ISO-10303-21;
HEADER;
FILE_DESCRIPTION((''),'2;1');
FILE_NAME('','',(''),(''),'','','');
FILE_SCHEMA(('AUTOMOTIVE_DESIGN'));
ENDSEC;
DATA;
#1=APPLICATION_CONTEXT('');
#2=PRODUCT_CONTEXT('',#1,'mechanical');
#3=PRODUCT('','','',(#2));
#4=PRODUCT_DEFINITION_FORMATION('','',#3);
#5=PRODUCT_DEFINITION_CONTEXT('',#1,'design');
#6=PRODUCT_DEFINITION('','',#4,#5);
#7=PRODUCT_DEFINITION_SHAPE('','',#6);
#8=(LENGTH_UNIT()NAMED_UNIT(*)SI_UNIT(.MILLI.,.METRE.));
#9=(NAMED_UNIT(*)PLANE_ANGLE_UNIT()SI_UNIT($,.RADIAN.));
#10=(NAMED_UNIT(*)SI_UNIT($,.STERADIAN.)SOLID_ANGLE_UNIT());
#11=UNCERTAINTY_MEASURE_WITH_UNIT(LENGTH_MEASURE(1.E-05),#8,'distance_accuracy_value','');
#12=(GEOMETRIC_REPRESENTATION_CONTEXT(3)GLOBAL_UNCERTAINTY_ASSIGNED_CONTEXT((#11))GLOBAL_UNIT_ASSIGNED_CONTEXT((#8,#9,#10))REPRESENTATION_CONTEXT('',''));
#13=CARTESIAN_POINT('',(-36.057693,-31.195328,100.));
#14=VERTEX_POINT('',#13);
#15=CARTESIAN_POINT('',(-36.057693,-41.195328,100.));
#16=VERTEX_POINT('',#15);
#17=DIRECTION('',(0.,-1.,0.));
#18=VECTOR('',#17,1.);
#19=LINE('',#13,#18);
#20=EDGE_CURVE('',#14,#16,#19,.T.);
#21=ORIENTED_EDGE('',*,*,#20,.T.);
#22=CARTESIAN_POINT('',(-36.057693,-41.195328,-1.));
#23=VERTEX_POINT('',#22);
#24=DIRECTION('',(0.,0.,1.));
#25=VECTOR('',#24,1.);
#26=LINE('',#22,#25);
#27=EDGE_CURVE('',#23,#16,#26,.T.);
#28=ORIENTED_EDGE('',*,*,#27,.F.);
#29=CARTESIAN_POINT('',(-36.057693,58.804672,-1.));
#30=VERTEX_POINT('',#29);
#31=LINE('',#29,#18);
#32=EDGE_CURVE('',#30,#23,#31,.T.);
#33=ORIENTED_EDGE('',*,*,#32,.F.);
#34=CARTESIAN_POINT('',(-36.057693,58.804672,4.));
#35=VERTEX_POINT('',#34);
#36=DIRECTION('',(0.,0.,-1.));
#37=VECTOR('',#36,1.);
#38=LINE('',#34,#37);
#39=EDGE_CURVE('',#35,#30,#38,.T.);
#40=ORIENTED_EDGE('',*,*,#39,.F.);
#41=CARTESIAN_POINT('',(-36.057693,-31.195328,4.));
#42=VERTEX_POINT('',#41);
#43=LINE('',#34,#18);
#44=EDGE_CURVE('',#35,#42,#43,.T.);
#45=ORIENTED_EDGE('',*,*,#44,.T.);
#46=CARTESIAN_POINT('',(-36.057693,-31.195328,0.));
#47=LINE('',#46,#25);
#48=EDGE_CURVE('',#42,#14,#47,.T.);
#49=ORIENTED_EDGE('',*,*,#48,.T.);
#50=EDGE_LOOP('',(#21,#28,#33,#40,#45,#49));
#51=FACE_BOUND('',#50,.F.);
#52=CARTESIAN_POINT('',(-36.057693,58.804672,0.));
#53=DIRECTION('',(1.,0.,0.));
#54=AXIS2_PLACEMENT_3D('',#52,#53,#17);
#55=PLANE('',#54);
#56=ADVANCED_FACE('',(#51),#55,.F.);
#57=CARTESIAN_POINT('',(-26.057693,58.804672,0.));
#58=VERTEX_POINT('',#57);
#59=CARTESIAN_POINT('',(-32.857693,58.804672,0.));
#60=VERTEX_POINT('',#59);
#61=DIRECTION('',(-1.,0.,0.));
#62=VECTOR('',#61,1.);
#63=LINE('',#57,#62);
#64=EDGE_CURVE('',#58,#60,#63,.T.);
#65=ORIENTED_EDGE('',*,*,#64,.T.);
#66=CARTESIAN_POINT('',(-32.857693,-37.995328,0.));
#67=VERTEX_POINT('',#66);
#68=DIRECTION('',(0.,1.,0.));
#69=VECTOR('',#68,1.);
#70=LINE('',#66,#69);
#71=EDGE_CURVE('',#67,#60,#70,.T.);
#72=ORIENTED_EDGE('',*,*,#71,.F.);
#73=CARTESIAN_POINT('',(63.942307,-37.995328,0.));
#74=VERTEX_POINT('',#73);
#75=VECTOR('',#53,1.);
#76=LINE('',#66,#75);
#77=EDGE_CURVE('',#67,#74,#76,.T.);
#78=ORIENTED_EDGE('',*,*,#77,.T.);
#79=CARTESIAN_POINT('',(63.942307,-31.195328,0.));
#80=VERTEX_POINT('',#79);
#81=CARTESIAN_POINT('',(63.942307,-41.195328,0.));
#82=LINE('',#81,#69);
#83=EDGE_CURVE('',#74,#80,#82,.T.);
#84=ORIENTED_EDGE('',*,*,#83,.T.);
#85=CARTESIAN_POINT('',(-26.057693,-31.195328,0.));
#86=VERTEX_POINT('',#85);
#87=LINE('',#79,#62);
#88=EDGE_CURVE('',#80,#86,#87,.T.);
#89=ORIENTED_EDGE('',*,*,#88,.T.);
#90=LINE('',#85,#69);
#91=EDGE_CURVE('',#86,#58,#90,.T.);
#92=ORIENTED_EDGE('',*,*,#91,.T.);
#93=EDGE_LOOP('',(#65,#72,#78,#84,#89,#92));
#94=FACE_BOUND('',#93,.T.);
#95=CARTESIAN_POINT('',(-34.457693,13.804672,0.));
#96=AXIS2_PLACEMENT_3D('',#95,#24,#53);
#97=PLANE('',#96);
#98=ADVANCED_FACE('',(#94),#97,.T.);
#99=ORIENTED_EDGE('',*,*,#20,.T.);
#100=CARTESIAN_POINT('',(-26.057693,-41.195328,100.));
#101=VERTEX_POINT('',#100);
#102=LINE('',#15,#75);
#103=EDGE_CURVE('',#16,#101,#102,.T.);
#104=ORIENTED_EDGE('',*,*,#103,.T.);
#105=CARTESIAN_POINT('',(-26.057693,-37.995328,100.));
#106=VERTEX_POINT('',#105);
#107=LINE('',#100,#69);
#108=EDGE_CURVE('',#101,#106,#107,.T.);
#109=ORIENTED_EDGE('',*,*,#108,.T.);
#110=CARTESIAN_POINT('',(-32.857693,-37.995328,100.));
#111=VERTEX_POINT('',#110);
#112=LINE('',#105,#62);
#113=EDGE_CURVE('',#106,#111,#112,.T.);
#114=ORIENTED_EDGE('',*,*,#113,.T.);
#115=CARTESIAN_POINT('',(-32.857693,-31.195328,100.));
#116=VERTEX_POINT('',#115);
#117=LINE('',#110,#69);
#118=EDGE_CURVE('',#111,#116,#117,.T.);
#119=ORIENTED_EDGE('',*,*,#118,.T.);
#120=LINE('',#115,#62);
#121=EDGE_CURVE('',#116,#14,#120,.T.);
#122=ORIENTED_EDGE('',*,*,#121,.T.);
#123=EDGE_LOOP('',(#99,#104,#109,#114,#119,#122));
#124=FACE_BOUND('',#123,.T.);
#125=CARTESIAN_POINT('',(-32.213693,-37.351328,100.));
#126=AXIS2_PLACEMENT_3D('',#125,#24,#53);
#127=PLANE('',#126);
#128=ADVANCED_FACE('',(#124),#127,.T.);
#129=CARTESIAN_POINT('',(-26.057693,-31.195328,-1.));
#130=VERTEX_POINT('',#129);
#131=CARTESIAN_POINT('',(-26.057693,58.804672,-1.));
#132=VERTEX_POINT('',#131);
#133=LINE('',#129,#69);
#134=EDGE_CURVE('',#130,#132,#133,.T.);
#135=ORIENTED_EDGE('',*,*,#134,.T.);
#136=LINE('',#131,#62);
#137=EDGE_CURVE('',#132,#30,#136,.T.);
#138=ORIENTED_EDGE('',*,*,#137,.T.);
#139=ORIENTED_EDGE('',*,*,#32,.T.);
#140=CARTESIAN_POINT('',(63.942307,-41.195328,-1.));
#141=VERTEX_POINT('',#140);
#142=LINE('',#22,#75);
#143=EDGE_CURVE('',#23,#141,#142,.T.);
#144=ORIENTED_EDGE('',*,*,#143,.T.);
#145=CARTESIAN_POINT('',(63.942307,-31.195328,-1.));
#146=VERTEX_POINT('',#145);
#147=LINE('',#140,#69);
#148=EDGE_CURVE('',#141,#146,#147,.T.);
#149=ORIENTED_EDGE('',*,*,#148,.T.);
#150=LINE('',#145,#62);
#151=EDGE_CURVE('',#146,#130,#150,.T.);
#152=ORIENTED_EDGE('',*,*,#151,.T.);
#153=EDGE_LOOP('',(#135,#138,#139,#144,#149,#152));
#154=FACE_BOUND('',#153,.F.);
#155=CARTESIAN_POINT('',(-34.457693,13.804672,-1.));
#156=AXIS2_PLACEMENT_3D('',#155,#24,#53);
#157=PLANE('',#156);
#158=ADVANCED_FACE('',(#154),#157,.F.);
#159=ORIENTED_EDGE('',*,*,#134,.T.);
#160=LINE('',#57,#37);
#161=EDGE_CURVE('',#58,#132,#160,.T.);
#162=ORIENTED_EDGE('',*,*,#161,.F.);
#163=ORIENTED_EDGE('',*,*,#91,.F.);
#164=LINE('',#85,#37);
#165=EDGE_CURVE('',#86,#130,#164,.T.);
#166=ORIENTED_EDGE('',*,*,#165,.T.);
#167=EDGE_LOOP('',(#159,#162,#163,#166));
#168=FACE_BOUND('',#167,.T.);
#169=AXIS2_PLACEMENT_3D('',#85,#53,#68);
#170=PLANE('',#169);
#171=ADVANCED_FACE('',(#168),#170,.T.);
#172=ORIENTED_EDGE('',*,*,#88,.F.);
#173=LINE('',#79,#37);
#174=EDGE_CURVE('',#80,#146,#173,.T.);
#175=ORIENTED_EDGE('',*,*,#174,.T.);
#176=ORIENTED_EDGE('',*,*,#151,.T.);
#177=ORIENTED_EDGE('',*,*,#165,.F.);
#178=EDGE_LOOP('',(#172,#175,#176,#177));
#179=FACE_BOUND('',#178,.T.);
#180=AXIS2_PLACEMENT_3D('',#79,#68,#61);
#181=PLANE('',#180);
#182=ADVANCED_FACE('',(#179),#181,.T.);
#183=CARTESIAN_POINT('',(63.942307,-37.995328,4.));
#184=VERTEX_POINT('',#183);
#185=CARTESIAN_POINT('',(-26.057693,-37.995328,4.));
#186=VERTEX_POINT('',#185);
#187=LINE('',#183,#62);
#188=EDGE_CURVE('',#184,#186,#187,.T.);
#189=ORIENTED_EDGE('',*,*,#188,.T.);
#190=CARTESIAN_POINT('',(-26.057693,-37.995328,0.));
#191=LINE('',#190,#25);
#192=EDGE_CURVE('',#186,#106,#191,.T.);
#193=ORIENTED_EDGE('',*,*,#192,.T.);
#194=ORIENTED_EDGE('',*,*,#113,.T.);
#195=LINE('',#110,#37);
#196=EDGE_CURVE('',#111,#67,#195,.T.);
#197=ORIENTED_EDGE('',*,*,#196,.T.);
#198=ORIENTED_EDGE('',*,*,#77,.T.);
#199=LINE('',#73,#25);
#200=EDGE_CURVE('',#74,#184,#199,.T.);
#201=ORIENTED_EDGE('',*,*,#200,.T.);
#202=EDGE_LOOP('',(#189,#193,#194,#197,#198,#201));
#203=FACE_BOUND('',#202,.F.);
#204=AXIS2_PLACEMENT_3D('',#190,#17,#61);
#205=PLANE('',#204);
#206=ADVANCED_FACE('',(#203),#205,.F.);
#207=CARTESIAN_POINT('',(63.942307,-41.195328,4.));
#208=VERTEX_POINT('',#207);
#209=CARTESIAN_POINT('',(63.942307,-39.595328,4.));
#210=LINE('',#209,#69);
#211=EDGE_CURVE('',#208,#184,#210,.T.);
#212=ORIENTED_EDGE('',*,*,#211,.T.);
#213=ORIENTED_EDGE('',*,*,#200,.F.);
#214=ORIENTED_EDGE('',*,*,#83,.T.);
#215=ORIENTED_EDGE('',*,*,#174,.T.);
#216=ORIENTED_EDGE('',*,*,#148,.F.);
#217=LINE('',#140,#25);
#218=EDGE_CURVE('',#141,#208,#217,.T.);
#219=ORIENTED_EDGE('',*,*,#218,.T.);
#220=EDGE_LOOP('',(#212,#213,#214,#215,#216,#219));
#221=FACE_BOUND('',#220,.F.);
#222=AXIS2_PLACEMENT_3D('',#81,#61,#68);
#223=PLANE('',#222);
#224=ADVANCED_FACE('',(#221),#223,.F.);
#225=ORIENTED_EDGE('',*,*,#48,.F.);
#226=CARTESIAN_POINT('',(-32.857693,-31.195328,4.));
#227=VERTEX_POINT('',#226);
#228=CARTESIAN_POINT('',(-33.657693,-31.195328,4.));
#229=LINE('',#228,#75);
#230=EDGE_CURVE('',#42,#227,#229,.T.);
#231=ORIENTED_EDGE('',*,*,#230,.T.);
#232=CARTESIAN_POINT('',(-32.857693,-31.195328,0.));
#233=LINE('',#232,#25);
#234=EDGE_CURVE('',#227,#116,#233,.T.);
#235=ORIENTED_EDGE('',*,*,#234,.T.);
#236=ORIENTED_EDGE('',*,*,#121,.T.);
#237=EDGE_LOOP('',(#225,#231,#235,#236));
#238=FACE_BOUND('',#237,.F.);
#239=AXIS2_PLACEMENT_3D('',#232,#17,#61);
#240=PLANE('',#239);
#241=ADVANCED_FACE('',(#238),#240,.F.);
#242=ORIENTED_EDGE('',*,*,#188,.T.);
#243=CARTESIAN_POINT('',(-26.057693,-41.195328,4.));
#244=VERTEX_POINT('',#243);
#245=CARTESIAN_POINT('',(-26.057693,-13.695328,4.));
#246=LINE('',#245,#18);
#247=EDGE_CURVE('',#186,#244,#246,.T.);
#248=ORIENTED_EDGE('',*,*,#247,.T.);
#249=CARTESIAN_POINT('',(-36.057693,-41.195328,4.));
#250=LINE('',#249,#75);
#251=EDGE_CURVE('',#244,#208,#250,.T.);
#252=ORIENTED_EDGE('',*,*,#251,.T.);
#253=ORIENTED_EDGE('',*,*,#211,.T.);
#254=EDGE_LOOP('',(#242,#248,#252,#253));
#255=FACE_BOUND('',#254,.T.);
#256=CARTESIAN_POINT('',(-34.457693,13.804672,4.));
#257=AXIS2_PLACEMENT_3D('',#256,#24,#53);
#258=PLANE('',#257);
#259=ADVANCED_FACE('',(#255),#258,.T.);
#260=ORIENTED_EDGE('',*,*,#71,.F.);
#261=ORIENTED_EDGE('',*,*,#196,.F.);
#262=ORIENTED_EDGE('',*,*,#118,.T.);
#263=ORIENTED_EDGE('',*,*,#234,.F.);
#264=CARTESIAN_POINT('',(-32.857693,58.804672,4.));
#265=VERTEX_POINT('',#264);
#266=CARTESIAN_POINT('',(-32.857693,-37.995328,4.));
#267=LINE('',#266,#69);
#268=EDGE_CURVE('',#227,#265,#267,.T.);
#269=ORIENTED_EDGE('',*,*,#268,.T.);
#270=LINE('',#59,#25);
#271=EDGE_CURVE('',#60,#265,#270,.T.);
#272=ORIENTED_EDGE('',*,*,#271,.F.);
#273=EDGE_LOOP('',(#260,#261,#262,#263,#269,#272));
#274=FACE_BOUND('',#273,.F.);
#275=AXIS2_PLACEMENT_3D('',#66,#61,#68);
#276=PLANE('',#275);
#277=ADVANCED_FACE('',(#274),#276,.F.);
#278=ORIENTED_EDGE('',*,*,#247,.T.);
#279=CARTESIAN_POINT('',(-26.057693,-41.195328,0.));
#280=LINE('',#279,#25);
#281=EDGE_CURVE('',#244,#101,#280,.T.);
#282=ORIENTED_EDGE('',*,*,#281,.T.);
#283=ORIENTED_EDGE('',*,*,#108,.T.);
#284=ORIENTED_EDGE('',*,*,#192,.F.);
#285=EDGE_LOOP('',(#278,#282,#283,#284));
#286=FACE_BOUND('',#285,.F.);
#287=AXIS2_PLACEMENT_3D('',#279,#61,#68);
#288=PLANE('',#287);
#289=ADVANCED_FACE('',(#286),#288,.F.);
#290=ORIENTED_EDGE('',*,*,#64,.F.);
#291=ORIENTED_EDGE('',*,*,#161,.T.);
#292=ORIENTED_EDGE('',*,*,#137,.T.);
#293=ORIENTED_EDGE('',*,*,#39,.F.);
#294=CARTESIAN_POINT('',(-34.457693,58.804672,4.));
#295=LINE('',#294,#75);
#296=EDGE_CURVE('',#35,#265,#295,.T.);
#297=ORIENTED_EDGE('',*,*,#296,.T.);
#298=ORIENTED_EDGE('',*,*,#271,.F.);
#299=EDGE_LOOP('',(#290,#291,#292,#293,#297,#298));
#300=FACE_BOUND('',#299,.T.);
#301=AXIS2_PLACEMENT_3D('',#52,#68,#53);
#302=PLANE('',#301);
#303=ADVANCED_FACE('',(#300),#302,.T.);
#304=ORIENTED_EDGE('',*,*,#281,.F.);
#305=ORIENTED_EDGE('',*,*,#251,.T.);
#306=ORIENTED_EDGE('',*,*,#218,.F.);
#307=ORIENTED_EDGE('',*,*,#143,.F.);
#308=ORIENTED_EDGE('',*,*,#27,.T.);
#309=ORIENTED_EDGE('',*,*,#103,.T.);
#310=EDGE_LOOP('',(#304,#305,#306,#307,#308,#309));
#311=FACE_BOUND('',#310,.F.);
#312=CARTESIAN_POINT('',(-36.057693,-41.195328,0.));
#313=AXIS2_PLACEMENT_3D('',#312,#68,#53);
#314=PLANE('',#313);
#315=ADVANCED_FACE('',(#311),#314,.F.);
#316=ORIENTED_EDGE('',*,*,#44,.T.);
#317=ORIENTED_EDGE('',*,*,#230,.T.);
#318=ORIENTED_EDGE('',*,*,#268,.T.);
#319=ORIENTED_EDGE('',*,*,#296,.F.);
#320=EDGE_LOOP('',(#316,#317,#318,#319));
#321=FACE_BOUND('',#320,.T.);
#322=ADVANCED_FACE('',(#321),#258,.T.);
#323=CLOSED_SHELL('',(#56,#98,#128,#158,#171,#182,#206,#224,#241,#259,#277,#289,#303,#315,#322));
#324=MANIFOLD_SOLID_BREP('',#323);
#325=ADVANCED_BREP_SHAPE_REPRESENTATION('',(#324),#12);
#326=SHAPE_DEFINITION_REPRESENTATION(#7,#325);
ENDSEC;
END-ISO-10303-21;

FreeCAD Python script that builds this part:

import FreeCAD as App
import Part
import Sketcher


def add_polygon(sketch, points):
    """Adds a closed chain of lines whose ends are joined by coincident constraints."""
    first, n = sketch.GeometryCount, len(points)
    for a, b in zip(points, points[1:] + points[:1]):
        sketch.addGeometry(Part.LineSegment(App.Vector(*a, 0), App.Vector(*b, 0)), False)
    for i in range(n):
        sketch.addConstraint(Sketcher.Constraint("Coincident", first + i, 2, first + (i + 1) % n, 1))

doc = App.newDocument("Part")
body = doc.addObject("PartDesign::Body", "Body")

# Sketch on XY plane
sketch1 = body.newObject("Sketcher::SketchObject", "Sketch")
sketch1.AttachmentSupport = (doc.getObject("XY_Plane"), [""])
sketch1.MapMode = "FlatFace"
add_polygon(sketch1, [(-36, -41), (64, -41), (64, -31), (-26, -31), (-26, 59), (-36, 59)])  # lines 0-5
sketch1.addConstraint([
    Sketcher.Constraint("Horizontal", 0),
    Sketcher.Constraint("Vertical", 1),
    Sketcher.Constraint("Horizontal", 2),
    Sketcher.Constraint("Vertical", 3),
    Sketcher.Constraint("Horizontal", 4),
    Sketcher.Constraint("Vertical", 5),
    Sketcher.Constraint("Equal", 4, 1),
    Sketcher.Constraint("Equal", 2, 3),
    Sketcher.Constraint("DistanceX", 0, 1, 0, 2, 100.0),
    Sketcher.Constraint("DistanceX", 2, 2, 2, 1, 90.0),
    Sketcher.Constraint("DistanceY", 0, 2, -1, 1, 41.195328),
    Sketcher.Constraint("DistanceX", -1, 1, 0, 2, 63.942307),
])
pad1 = body.newObject("PartDesign::Pad", "Pad")
pad1.Profile = sketch1
pad1.Length = 1
pad1.Reversed = True

# Sketch on XY plane
sketch2 = body.newObject("Sketcher::SketchObject", "Sketch001")
sketch2.AttachmentSupport = (doc.getObject("XY_Plane"), [""])
sketch2.MapMode = "FlatFace"
add_polygon(sketch2, [(-36.1, 58.8), (-36.1, -41.2), (63.9, -41.2), (63.9, -38), (-32.9, -38), (-32.9, 58.8)])  # lines 0-5
sketch2.addConstraint([
    Sketcher.Constraint("Vertical", 0),
    Sketcher.Constraint("Horizontal", 1),
    Sketcher.Constraint("Vertical", 2),
    Sketcher.Constraint("Horizontal", 3),
    Sketcher.Constraint("Vertical", 4),
    Sketcher.Constraint("Horizontal", 5),
    Sketcher.Constraint("Equal", 1, 0),
    Sketcher.Constraint("Equal", 5, 2),
    Sketcher.Constraint("DistanceX", 1, 1, 1, 2, 100.0),
    Sketcher.Constraint("DistanceX", 3, 2, 3, 1, 96.8),
    Sketcher.Constraint("DistanceY", 0, 2, -1, 1, 41.195328),
    Sketcher.Constraint("DistanceX", 0, 2, -1, 1, 36.057693),
])
pad2 = body.newObject("PartDesign::Pad", "Pad001")
pad2.Profile = sketch2
pad2.Length = 4

# Sketch on XY plane
sketch3 = body.newObject("Sketcher::SketchObject", "Sketch002")
sketch3.AttachmentSupport = (doc.getObject("XY_Plane"), [""])
sketch3.MapMode = "FlatFace"
add_polygon(sketch3, [(-32.9, -31.2), (-36.1, -31.2), (-36.1, -41.2), (-26.1, -41.2), (-26.1, -38), (-32.9, -38)])  # lines 0-5
sketch3.addConstraint([
    Sketcher.Constraint("Horizontal", 0),
    Sketcher.Constraint("Vertical", 1),
    Sketcher.Constraint("Horizontal", 2),
    Sketcher.Constraint("Vertical", 3),
    Sketcher.Constraint("Horizontal", 4),
    Sketcher.Constraint("Vertical", 5),
    Sketcher.Constraint("Equal", 2, 1),
    Sketcher.Constraint("Equal", 0, 3),
    Sketcher.Constraint("DistanceX", 2, 1, 2, 2, 10.0),
    Sketcher.Constraint("DistanceX", 0, 2, 0, 1, 3.2),
    Sketcher.Constraint("DistanceY", 0, 2, -1, 1, 31.195328),
    Sketcher.Constraint("DistanceX", 0, 2, -1, 1, 36.057693),
])
pad3 = body.newObject("PartDesign::Pad", "Pad002")
pad3.Profile = sketch3
pad3.Length = 100

doc.recompute()
